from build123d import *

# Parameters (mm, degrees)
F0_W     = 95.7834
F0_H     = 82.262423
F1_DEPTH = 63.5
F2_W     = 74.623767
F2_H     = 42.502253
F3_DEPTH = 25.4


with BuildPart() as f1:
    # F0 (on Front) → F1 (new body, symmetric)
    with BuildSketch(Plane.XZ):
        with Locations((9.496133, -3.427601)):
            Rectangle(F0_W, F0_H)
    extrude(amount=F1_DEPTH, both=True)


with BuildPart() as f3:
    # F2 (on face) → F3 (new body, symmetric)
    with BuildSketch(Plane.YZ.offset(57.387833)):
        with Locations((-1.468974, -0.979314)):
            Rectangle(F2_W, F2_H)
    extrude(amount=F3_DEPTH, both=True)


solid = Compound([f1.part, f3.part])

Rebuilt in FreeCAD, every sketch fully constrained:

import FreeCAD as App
import Part
import Sketcher
from FreeCAD import Vector
Q = App.Units.Quantity

doc = App.newDocument("Part")
params = doc.addObject("Spreadsheet::Sheet", "Params")
for row, (alias, value) in enumerate([
    ("sketch1_width", "3.771 in"),
    ("pad1_length", "5 in"),
    ("pad2_length", "2 in"),
], start=1):
    params.set(f"A{row}", alias)
    params.set(f"B{row}", "=" + value)
    params.setAlias(f"B{row}", alias)

body = doc.addObject("PartDesign::Body", "Body")

# Sketch on XZ plane
sketch1 = body.newObject("Sketcher::SketchObject", "Sketch")
sketch1.AttachmentSupport = (doc.getObject("XZ_Plane"), [""])
sketch1.MapMode = "FlatFace"
sketch1.addGeometry([
    Part.LineSegment(Vector(-38, 38, 0), Vector(-38, -45, 0)),
    Part.LineSegment(Vector(-38, -45, 0), Vector(57, -45, 0)),
    Part.LineSegment(Vector(57, -45, 0), Vector(57, 38, 0)),
    Part.LineSegment(Vector(57, 38, 0), Vector(-38, 38, 0)),
], False)
sketch1.addConstraint([
    Sketcher.Constraint("Coincident", 0, 2, 1, 1),
    Sketcher.Constraint("Coincident", 1, 2, 2, 1),
    Sketcher.Constraint("Coincident", 2, 2, 3, 1),
    Sketcher.Constraint("Coincident", 3, 2, 0, 1),
    Sketcher.Constraint("Vertical", 0),
    Sketcher.Constraint("Horizontal", 1),
    Sketcher.Constraint("Vertical", 2),
    Sketcher.Constraint("Horizontal", 3),
    Sketcher.Constraint("DistanceX", 1, 1, 1, 2, Q("3.771 in")),
    Sketcher.Constraint("DistanceY", 0, 2, 0, 1, 82.262423),
    Sketcher.Constraint("DistanceY", -1, 1, 2, 2, 37.703611),
    Sketcher.Constraint("DistanceX", 0, 2, -1, 1, 38.395567),
])
sketch1.setExpression("Constraints[8]", "Params.sketch1_width")
pad1 = body.newObject("PartDesign::Pad", "Pad")
pad1.Profile = sketch1
pad1.setExpression("Length", "Params.pad1_length")
pad1.Midplane = True
body2 = doc.addObject("PartDesign::Body", "Body001")

# Sketch on YZ plane
sketch2 = body2.newObject("Sketcher::SketchObject", "Sketch001")
sketch2.AttachmentSupport = (doc.getObject("YZ_Plane001"), [""])
sketch2.MapMode = "FlatFace"
sketch2.AttachmentOffset = App.Placement(Vector(0, 0, 57.387833), App.Rotation())
sketch2.addGeometry([
    Part.LineSegment(Vector(-39, 20, 0), Vector(-39, -22, 0)),
    Part.LineSegment(Vector(-39, -22, 0), Vector(36, -22, 0)),
    Part.LineSegment(Vector(36, -22, 0), Vector(36, 20, 0)),
    Part.LineSegment(Vector(36, 20, 0), Vector(-39, 20, 0)),
], False)
sketch2.addConstraint([
    Sketcher.Constraint("Coincident", 0, 2, 1, 1),
    Sketcher.Constraint("Coincident", 1, 2, 2, 1),
    Sketcher.Constraint("Coincident", 2, 2, 3, 1),
    Sketcher.Constraint("Coincident", 3, 2, 0, 1),
    Sketcher.Constraint("Vertical", 0),
    Sketcher.Constraint("Horizontal", 1),
    Sketcher.Constraint("Vertical", 2),
    Sketcher.Constraint("Horizontal", 3),
    Sketcher.Constraint("DistanceX", 1, 1, 1, 2, 74.623767),
    Sketcher.Constraint("DistanceY", 0, 2, 0, 1, 42.502253),
    Sketcher.Constraint("DistanceY", 0, 2, -1, 1, 22.230441),
    Sketcher.Constraint("DistanceX", -1, 1, 1, 2, 35.842909),
])
pad2 = body2.newObject("PartDesign::Pad", "Pad001")
pad2.Profile = sketch2
pad2.setExpression("Length", "Params.pad2_length")
pad2.Midplane = True

doc.recompute()
